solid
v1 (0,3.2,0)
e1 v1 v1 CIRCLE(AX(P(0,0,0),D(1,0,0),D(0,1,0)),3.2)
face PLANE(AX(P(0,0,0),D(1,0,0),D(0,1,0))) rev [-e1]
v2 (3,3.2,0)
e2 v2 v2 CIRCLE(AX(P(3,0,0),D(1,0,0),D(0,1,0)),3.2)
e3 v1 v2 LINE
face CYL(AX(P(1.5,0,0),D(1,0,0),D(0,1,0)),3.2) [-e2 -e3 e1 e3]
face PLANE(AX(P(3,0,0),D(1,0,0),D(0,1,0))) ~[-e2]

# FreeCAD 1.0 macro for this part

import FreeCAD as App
import Part
import Sketcher

V = App.Vector

doc = App.newDocument("Part")
params = doc.addObject("Spreadsheet::Sheet", "Params")
for row, (alias, value) in enumerate([
    ("sketch1_width", "3 mm"),
    ("sketch1_height", "3.2 mm"),
    ("revolution_angle", "360 deg"),
], start=1):
    params.set(f"A{row}", alias)
    params.set(f"B{row}", "=" + value)
    params.setAlias(f"B{row}", alias)

body = doc.addObject("PartDesign::Body", "Body")

sketch1 = doc.addObject("Sketcher::SketchObject", "Sketch")
body.addObject(sketch1)
sketch1.AttachmentSupport = (doc.XY_Plane, [""])
sketch1.MapMode = "FlatFace"
sketch1.addGeometry(Part.LineSegment(V(0, 3.2, 0), V(0, 0, 0)), False)
sketch1.addGeometry(Part.LineSegment(V(0, 0, 0), V(3, 0, 0)), False)
sketch1.addGeometry(Part.LineSegment(V(3, 0, 0), V(3, 3.2, 0)), False)
sketch1.addGeometry(Part.LineSegment(V(3, 3.2, 0), V(0, 3.2, 0)), False)
sketch1.addConstraint(Sketcher.Constraint("Coincident", 0, 2, 1, 1))
sketch1.addConstraint(Sketcher.Constraint("Coincident", 1, 2, 2, 1))
sketch1.addConstraint(Sketcher.Constraint("Coincident", 2, 2, 3, 1))
sketch1.addConstraint(Sketcher.Constraint("Coincident", 3, 2, 0, 1))
sketch1.addConstraint(Sketcher.Constraint("Vertical", 0))
sketch1.addConstraint(Sketcher.Constraint("Horizontal", 1))
sketch1.addConstraint(Sketcher.Constraint("Vertical", 2))
sketch1.addConstraint(Sketcher.Constraint("Horizontal", 3))
sketch1.addConstraint(Sketcher.Constraint("Coincident", 0, 2, -1, 1))
sketch1.addConstraint(Sketcher.Constraint("DistanceX", 1, 1, 1, 2, 3.0))
sketch1.addConstraint(Sketcher.Constraint("DistanceY", 0, 2, 0, 1, 3.2))
sketch1.setExpression("Constraints[9]", "Params.sketch1_width")
sketch1.setExpression("Constraints[10]", "Params.sketch1_height")
revolution = doc.addObject("PartDesign::Revolution", "Revolution")
body.addObject(revolution)
revolution.Profile = sketch1
revolution.ReferenceAxis = (sketch1, ["H_Axis"])
revolution.setExpression("Angle", "Params.revolution_angle")

doc.recompute()
